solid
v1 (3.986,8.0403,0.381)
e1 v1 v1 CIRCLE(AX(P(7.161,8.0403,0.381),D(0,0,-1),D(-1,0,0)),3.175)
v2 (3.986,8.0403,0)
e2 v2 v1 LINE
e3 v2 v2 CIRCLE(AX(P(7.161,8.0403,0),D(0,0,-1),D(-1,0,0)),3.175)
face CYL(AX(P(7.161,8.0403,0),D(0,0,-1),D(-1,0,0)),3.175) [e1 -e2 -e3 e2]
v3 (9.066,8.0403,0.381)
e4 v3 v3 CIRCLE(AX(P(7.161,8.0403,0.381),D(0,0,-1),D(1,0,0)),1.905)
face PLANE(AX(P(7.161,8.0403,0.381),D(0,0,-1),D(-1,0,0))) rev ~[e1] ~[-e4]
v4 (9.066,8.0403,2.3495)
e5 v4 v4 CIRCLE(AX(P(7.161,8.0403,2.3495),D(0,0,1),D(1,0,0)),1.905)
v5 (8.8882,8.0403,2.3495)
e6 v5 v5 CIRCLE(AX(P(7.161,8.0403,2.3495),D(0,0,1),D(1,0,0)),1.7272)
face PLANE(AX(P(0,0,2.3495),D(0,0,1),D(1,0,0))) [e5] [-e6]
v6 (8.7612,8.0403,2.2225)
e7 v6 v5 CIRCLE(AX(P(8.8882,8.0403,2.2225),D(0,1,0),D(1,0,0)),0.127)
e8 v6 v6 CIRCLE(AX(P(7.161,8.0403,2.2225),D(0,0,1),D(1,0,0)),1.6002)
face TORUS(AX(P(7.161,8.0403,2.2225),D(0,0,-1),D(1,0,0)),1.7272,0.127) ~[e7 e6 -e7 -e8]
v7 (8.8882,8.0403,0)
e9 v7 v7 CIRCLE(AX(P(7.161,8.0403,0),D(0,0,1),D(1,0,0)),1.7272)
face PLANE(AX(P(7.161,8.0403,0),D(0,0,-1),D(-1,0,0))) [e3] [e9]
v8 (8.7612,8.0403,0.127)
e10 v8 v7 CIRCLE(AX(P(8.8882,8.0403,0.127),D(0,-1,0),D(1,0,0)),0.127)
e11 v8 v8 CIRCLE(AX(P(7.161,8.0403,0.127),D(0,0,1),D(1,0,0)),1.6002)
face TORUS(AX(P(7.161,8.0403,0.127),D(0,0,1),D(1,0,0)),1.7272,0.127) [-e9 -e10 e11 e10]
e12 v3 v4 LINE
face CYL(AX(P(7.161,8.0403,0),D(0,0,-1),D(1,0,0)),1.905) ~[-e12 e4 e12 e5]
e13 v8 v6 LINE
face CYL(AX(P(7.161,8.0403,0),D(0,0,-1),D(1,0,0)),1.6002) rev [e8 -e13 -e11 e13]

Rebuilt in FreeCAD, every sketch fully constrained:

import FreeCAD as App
import Part
import Sketcher
from FreeCAD import Vector
Q = App.Units.Quantity


def edges_at(feature, points):
    """Names of the edges that pass closest to the given points."""
    edges = feature.Shape.Edges
    near = lambda p: min(range(len(edges)), key=lambda i: edges[i].distToShape(Part.Vertex(*p))[0])
    return sorted({f"Edge{near(p) + 1}" for p in points})

doc = App.newDocument("Part")
body = doc.addObject("PartDesign::Body", "Body")

sketch1 = doc.addObject("Sketcher::SketchObject", "Sketch")
body.addObject(sketch1)
sketch1.AttachmentSupport = (doc.XY_Plane, [""])
sketch1.MapMode = "FlatFace"
sketch1.addGeometry(Part.Circle(Vector(7.161, 8.0403, 0), Vector(0, 0, 1), 1.905), False)
sketch1.addGeometry(Part.Circle(Vector(7.161, 8.0403, 0), Vector(0, 0, 1), 1.6002), False)
sketch1.addConstraint(Sketcher.Constraint("Coincident", 1, 3, 0, 3))
sketch1.addConstraint(Sketcher.Constraint("Diameter", 0, Q("0.15 in")))
sketch1.addConstraint(Sketcher.Constraint("Diameter", 1, Q("0.126 in")))
sketch1.addConstraint(Sketcher.Constraint("DistanceX", -1, 1, 0, 3, 7.161))
sketch1.addConstraint(Sketcher.Constraint("DistanceY", -1, 1, 0, 3, 8.0403))
pad1 = doc.addObject("PartDesign::Pad", "Pad")
body.addObject(pad1)
pad1.Profile = sketch1
pad1.Length = Q("0.0925 in")
doc.recompute()

fillet = doc.addObject("PartDesign::Fillet", "Fillet")
body.addObject(fillet)
fillet.Base = (pad1, edges_at(pad1, [(5.561, 8.04, 2.349), (5.561, 8.04, 0)]))
fillet.Radius = Q("0.005 in")

sketch2 = doc.addObject("Sketcher::SketchObject", "Sketch001")
body.addObject(sketch2)
sketch2.AttachmentSupport = (doc.XY_Plane, [""])
sketch2.MapMode = "FlatFace"
sketch2.addGeometry(Part.Circle(Vector(7.161, 8.0403, 0), Vector(0, 0, 1), 3.175), False)
sketch2.addGeometry(Part.Circle(Vector(7.161, 8.0403, 0), Vector(0, 0, 1), 1.905), False)
sketch2.addConstraint(Sketcher.Constraint("Coincident", 1, 3, 0, 3))
sketch2.addConstraint(Sketcher.Constraint("Diameter", 0, Q("0.25 in")))
sketch2.addConstraint(Sketcher.Constraint("Diameter", 1, Q("0.15 in")))
sketch2.addConstraint(Sketcher.Constraint("DistanceX", -1, 1, 0, 3, 7.161))
sketch2.addConstraint(Sketcher.Constraint("DistanceY", -1, 1, 0, 3, 8.0403))
pad2 = doc.addObject("PartDesign::Pad", "Pad001")
body.addObject(pad2)
pad2.Profile = sketch2
pad2.Length = Q("0.015 in")

doc.recompute()
